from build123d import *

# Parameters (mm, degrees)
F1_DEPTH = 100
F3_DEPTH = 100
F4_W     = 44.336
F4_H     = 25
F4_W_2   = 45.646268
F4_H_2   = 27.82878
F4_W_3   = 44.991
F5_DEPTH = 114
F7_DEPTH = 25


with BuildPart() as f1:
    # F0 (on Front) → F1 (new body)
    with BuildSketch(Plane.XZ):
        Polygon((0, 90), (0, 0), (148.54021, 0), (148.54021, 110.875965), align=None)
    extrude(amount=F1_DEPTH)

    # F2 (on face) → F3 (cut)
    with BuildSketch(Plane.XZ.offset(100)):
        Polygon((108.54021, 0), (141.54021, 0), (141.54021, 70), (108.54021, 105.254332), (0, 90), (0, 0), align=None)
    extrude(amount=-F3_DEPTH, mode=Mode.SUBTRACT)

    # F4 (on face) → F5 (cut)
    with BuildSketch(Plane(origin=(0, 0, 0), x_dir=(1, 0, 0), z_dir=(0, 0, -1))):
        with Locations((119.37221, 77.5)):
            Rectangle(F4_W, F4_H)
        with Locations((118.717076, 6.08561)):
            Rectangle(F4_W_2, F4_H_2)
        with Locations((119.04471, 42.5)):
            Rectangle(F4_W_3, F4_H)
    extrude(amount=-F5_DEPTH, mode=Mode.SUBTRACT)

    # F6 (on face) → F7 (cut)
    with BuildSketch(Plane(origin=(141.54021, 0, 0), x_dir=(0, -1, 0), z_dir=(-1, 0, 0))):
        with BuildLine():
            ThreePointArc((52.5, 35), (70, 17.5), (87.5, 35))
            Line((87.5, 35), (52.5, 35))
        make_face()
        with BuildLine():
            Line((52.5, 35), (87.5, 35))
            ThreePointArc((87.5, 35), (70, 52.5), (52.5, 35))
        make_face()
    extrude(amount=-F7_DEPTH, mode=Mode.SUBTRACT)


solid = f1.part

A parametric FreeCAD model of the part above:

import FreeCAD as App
import Part
import Sketcher
from FreeCAD import Vector
Q = App.Units.Quantity

doc = App.newDocument("Part")
params = doc.addObject("Spreadsheet::Sheet", "Params")
for row, (alias, value) in enumerate([
    ("sketch1_height", "90 mm"),
    ("sketch1_length", "150 mm"),
    ("pad1_length", "100 mm"),
    ("sketch2_height", "70 mm"),
    ("sketch2_height2", "90 mm"),
    ("pocket1_length", "100 mm"),
    ("sketch3_height", "25 mm"),
    ("pocket2_length", "114 mm"),
    ("sketch4_diameter", "35 mm"),
    ("pocket3_length", "25 mm"),
], start=1):
    params.set(f"A{row}", alias)
    params.set(f"B{row}", "=" + value)
    params.setAlias(f"B{row}", alias)

body = doc.addObject("PartDesign::Body", "Body")

sketch1 = body.newObject("Sketcher::SketchObject", "Sketch")
sketch1.AttachmentSupport = (doc.getObject("XZ_Plane"), [""])
sketch1.MapMode = "FlatFace"
sketch1.addGeometry([
    Part.LineSegment(Vector(0, 90, 0), Vector(0, 0, 0)),
    Part.LineSegment(Vector(0, 0, 0), Vector(148.54021, 0, 0)),
    Part.LineSegment(Vector(148.54021, 0, 0), Vector(148.54021, 110.875965, 0)),
    Part.LineSegment(Vector(148.54021, 110.875965, 0), Vector(0, 90, 0)),
], False)
sketch1.addConstraint([
    Sketcher.Constraint("Coincident", 0, 2, 1, 1),
    Sketcher.Constraint("Coincident", 1, 2, 2, 1),
    Sketcher.Constraint("Coincident", 2, 2, 3, 1),
    Sketcher.Constraint("Coincident", 3, 2, 0, 1),
    Sketcher.Constraint("Vertical", 0),
    Sketcher.Constraint("Horizontal", 1),
    Sketcher.Constraint("Vertical", 2),
    Sketcher.Constraint("Coincident", 0, 2, -1, 1),
    Sketcher.Constraint("DistanceY", 0, 2, 0, 1, Q("90 mm")),
    Sketcher.Constraint("Angle", 3, Q("-172 deg")),
    Sketcher.Constraint("Distance", 3, Q("150 mm")),
])
sketch1.setExpression("Constraints[8]", "Params.sketch1_height")
sketch1.setExpression("Constraints[10]", "Params.sketch1_length")
pad1 = body.newObject("PartDesign::Pad", "Pad")
pad1.Profile = sketch1
pad1.setExpression("Length", "Params.pad1_length")

sketch2 = body.newObject("Sketcher::SketchObject", "Sketch001")
sketch2.AttachmentSupport = (doc.getObject("XZ_Plane"), [""])
sketch2.MapMode = "FlatFace"
sketch2.AttachmentOffset = App.Placement(Vector(0, 0, 100), App.Rotation())
sketch2.addGeometry([
    Part.LineSegment(Vector(141.54021, 0, 0), Vector(141.54021, 70, 0)),
    Part.LineSegment(Vector(141.54021, 70, 0), Vector(108.54021, 105.254332, 0)),
    Part.LineSegment(Vector(108.54021, 105.254332, 0), Vector(0, 90, 0)),
    Part.LineSegment(Vector(0, 90, 0), Vector(0, 0, 0)),
    Part.LineSegment(Vector(0, 0, 0), Vector(141.54021, 0, 0)),
], False)
sketch2.addConstraint([
    Sketcher.Constraint("Coincident", 0, 2, 1, 1),
    Sketcher.Constraint("Coincident", 1, 2, 2, 1),
    Sketcher.Constraint("Coincident", 2, 2, 3, 1),
    Sketcher.Constraint("Coincident", 3, 2, 4, 1),
    Sketcher.Constraint("Coincident", 4, 2, 0, 1),
    Sketcher.Constraint("Vertical", 0),
    Sketcher.Constraint("Vertical", 3),
    Sketcher.Constraint("Horizontal", 4),
    Sketcher.Constraint("Coincident", 3, 2, -1, 1),
    Sketcher.Constraint("DistanceY", 0, 1, 0, 2, Q("70 mm")),
    Sketcher.Constraint("DistanceY", 3, 2, 3, 1, Q("90 mm")),
    Sketcher.Constraint("Angle", 2, Q("-172 deg")),
    Sketcher.Constraint("DistanceX", 1, 2, 0, 2, Q("33 mm")),
    Sketcher.Constraint("DistanceX", 4, 1, 4, 2, Q("141.54021 mm")),
])
sketch2.setExpression("Constraints[9]", "Params.sketch2_height")
sketch2.setExpression("Constraints[10]", "Params.sketch2_height2")
pocket1 = body.newObject("PartDesign::Pocket", "Pocket")
pocket1.Profile = sketch2
pocket1.setExpression("Length", "Params.pocket1_length")

sketch3 = body.newObject("Sketcher::SketchObject", "Sketch002")
sketch3.AttachmentSupport = (doc.getObject("XY_Plane"), [""])
sketch3.MapMode = "FlatFace"
sketch3.addGeometry([
    Part.LineSegment(Vector(97.20421, -90, 0), Vector(97.20421, -65, 0)),
    Part.LineSegment(Vector(97.20421, -65, 0), Vector(141.54021, -65, 0)),
    Part.LineSegment(Vector(141.54021, -65, 0), Vector(141.54021, -90, 0)),
    Part.LineSegment(Vector(141.54021, -90, 0), Vector(97.20421, -90, 0)),
    Part.LineSegment(Vector(95.893942, -20, 0), Vector(95.893942, 7.82878, 0)),
    Part.LineSegment(Vector(95.893942, 7.82878, 0), Vector(141.54021, 7.82878, 0)),
    Part.LineSegment(Vector(141.54021, 7.82878, 0), Vector(141.54021, -20, 0)),
    Part.LineSegment(Vector(141.54021, -20, 0), Vector(95.893942, -20, 0)),
    Part.LineSegment(Vector(96.54921, -55, 0), Vector(96.54921, -30, 0)),
    Part.LineSegment(Vector(96.54921, -30, 0), Vector(141.54021, -30, 0)),
    Part.LineSegment(Vector(141.54021, -30, 0), Vector(141.54021, -55, 0)),
    Part.LineSegment(Vector(141.54021, -55, 0), Vector(96.54921, -55, 0)),
], False)
sketch3.addConstraint([
    Sketcher.Constraint("Coincident", 0, 2, 1, 1),
    Sketcher.Constraint("Coincident", 1, 2, 2, 1),
    Sketcher.Constraint("Coincident", 2, 2, 3, 1),
    Sketcher.Constraint("Coincident", 3, 2, 0, 1),
    Sketcher.Constraint("Coincident", 4, 2, 5, 1),
    Sketcher.Constraint("Coincident", 5, 2, 6, 1),
    Sketcher.Constraint("Coincident", 6, 2, 7, 1),
    Sketcher.Constraint("Coincident", 7, 2, 4, 1),
    Sketcher.Constraint("Coincident", 8, 2, 9, 1),
    Sketcher.Constraint("Coincident", 9, 2, 10, 1),
    Sketcher.Constraint("Coincident", 10, 2, 11, 1),
    Sketcher.Constraint("Coincident", 11, 2, 8, 1),
    Sketcher.Constraint("Vertical", 0),
    Sketcher.Constraint("Horizontal", 1),
    Sketcher.Constraint("Vertical", 2),
    Sketcher.Constraint("Horizontal", 3),
    Sketcher.Constraint("Vertical", 4),
    Sketcher.Constraint("Horizontal", 5),
    Sketcher.Constraint("Vertical", 6),
    Sketcher.Constraint("Horizontal", 7),
    Sketcher.Constraint("Vertical", 8),
    Sketcher.Constraint("Horizontal", 9),
    Sketcher.Constraint("Vertical", 10),
    Sketcher.Constraint("Horizontal", 11),
    Sketcher.Constraint("Vertical", 2, 2, 5, 2),
    Sketcher.Constraint("Vertical", 6, 2, 9, 2),
    Sketcher.Constraint("Equal", 2, 8),
    Sketcher.Constraint("DistanceY", 0, 1, 0, 2, Q("25 mm")),
    Sketcher.Constraint("DistanceY", 0, 2, -1, 1, Q("65 mm")),
    Sketcher.Constraint("DistanceY", 6, 2, -1, 1, Q("20 mm")),
    Sketcher.Constraint("DistanceY", 8, 2, -1, 1, Q("30 mm")),
    Sketcher.Constraint("DistanceX", 1, 1, 1, 2, Q("44.336 mm")),
    Sketcher.Constraint("DistanceX", 9, 1, 9, 2, Q("44.991 mm")),
    Sketcher.Constraint("DistanceX", 5, 1, 5, 2, Q("45.646268 mm")),
    Sketcher.Constraint("DistanceY", 4, 1, 4, 2, Q("27.82878 mm")),
    Sketcher.Constraint("DistanceX", -1, 1, 0, 2, Q("97.20421 mm")),
])
sketch3.setExpression("Constraints[27]", "Params.sketch3_height")
pocket2 = body.newObject("PartDesign::Pocket", "Pocket001")
pocket2.Profile = sketch3
pocket2.setExpression("Length", "Params.pocket2_length")
pocket2.Reversed = True

sketch4 = body.newObject("Sketcher::SketchObject", "Sketch003")
sketch4.AttachmentSupport = (doc.getObject("YZ_Plane"), [""])
sketch4.MapMode = "FlatFace"
sketch4.AttachmentOffset = App.Placement(Vector(0, 0, 141.54021), App.Rotation())
sketch4.addGeometry(Part.Circle(Vector(-70, 35, 0), Vector(0, 0, 1), 17.5), False)
sketch4.addConstraint([
    Sketcher.Constraint("Diameter", 0, Q("35 mm")),
    Sketcher.Constraint("DistanceX", 0, 3, -1, 1, Q("70 mm")),
    Sketcher.Constraint("DistanceY", -1, 1, 0, 3, Q("35 mm")),
])
sketch4.setExpression("Constraints[0]", "Params.sketch4_diameter")
pocket3 = body.newObject("PartDesign::Pocket", "Pocket002")
pocket3.Profile = sketch4
pocket3.setExpression("Length", "Params.pocket3_length")
pocket3.Reversed = True

doc.recompute()
